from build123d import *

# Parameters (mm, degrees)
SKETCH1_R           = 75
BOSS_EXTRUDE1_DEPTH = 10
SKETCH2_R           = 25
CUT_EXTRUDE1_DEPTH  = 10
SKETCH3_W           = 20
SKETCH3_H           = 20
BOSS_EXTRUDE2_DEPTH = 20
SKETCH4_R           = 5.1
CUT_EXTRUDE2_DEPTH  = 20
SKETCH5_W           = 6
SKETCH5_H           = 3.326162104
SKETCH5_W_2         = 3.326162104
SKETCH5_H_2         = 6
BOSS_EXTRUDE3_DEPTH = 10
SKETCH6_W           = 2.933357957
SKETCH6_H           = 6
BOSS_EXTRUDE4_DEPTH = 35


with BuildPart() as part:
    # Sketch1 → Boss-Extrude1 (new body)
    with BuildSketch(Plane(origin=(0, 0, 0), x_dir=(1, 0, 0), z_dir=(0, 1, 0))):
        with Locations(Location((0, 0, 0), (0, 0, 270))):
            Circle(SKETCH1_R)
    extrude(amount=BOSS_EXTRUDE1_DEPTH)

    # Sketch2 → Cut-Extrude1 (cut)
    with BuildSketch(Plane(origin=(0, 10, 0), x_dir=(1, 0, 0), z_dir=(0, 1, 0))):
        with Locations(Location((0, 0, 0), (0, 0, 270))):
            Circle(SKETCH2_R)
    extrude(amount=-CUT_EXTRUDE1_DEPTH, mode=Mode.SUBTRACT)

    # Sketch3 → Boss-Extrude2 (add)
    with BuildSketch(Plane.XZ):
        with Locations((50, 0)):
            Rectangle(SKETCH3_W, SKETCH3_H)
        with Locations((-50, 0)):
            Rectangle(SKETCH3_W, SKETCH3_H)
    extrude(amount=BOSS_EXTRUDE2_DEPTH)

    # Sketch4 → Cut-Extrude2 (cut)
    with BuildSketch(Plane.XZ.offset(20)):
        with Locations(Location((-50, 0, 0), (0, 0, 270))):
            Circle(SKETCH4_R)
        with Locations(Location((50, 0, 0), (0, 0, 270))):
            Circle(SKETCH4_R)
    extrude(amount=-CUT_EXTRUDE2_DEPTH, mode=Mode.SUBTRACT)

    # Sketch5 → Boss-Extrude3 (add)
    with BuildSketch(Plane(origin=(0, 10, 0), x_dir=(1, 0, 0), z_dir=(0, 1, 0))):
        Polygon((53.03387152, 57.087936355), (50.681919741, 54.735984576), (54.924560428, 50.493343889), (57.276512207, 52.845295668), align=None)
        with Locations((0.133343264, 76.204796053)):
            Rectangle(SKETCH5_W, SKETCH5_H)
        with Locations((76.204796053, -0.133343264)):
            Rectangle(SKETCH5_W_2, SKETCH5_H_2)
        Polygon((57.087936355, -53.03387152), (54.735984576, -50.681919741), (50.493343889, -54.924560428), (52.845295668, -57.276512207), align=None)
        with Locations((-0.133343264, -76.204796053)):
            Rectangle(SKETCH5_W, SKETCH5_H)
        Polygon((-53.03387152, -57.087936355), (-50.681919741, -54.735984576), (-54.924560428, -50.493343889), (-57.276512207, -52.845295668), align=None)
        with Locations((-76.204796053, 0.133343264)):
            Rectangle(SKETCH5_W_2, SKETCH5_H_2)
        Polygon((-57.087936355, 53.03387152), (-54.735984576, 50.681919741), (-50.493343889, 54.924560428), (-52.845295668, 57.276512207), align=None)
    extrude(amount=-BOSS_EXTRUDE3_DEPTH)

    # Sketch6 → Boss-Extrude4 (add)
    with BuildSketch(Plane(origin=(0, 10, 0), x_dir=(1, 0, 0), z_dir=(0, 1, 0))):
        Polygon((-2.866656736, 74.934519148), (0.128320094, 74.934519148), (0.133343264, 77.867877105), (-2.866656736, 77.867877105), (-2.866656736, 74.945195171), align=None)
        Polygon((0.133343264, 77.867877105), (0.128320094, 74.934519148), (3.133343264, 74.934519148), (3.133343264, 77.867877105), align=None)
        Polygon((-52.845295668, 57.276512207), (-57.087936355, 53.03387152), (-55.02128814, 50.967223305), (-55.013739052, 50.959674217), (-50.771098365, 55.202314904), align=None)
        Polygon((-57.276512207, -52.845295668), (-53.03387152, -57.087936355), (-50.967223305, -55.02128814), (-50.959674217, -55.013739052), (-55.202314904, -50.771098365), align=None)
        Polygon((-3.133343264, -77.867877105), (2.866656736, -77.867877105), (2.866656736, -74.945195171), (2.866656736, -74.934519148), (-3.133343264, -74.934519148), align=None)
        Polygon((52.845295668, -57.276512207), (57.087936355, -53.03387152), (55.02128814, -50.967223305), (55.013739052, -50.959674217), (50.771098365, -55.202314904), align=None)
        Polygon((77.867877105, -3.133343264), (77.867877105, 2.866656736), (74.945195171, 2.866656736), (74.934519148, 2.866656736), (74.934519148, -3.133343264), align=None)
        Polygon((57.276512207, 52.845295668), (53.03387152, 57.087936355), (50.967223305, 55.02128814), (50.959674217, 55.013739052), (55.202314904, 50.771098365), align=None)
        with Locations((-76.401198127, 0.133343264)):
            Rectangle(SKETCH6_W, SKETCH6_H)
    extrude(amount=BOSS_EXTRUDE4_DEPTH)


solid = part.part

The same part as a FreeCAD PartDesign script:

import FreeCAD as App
import Part
import Sketcher

V = App.Vector
Q = App.Units.Quantity


def add_polygon(sketch, points):
    """Adds a closed chain of lines whose ends are joined by coincident constraints."""
    first, n = sketch.GeometryCount, len(points)
    for a, b in zip(points, points[1:] + points[:1]):
        sketch.addGeometry(Part.LineSegment(App.Vector(*a, 0), App.Vector(*b, 0)), False)
    for i in range(n):
        sketch.addConstraint(Sketcher.Constraint("Coincident", first + i, 2, first + (i + 1) % n, 1))

doc = App.newDocument("Part")
body = doc.addObject("PartDesign::Body", "Body")

# Sketch on XZ plane
sketch1 = doc.addObject("Sketcher::SketchObject", "Sketch")
body.addObject(sketch1)
sketch1.AttachmentSupport = (doc.XZ_Plane, [""])
sketch1.MapMode = "FlatFace"
sketch1.addGeometry(Part.Circle(V(0, 0, 0), V(0, 0, 1), 75), False)
sketch1.addConstraint([
    Sketcher.Constraint("Coincident", 0, 3, -1, 1),
    Sketcher.Constraint("Diameter", 0, 150.0),
])
pad1 = doc.addObject("PartDesign::Pad", "Pad")
body.addObject(pad1)
pad1.Profile = sketch1
pad1.Length = 10
pad1.Reversed = True

# Sketch on XZ plane
sketch2 = doc.addObject("Sketcher::SketchObject", "Sketch001")
body.addObject(sketch2)
sketch2.AttachmentSupport = (doc.XZ_Plane, [""])
sketch2.MapMode = "FlatFace"
sketch2.AttachmentOffset = App.Placement(V(0, 0, -10), App.Rotation())
sketch2.addGeometry(Part.Circle(V(0, 0, 0), V(0, 0, 1), 25), False)
sketch2.addConstraint([
    Sketcher.Constraint("Coincident", 0, 3, -1, 1),
    Sketcher.Constraint("Diameter", 0, 50.0),
])
pocket1 = doc.addObject("PartDesign::Pocket", "Pocket")
body.addObject(pocket1)
pocket1.Profile = sketch2
pocket1.Length = 10
pocket1.Reversed = True

# Sketch on XZ plane
sketch3 = doc.addObject("Sketcher::SketchObject", "Sketch002")
body.addObject(sketch3)
sketch3.AttachmentSupport = (doc.XZ_Plane, [""])
sketch3.MapMode = "FlatFace"
add_polygon(sketch3, [(40, 10), (40, -10), (60, -10), (60, 10)])  # lines 0-3
add_polygon(sketch3, [(-60, 10), (-60, -10), (-40, -10), (-40, 10)])  # lines 4-7
sketch3.addConstraint([
    Sketcher.Constraint("Vertical", 0),
    Sketcher.Constraint("Horizontal", 1),
    Sketcher.Constraint("Vertical", 2),
    Sketcher.Constraint("Horizontal", 3),
    Sketcher.Constraint("Vertical", 4),
    Sketcher.Constraint("Horizontal", 5),
    Sketcher.Constraint("Vertical", 6),
    Sketcher.Constraint("Horizontal", 7),
    Sketcher.Constraint("Symmetric", 2, 2, 4, 2, -1, 1),
    Sketcher.Constraint("Symmetric", 0, 2, 6, 2, -1, 1),
    Sketcher.Constraint("Horizontal", 1, 2, 4, 2),
    Sketcher.Constraint("Equal", 7, 0),
    Sketcher.Constraint("DistanceX", 1, 1, 1, 2, 20.0),
    Sketcher.Constraint("DistanceX", -1, 1, 0, 2, 40.0),
])
pad2 = doc.addObject("PartDesign::Pad", "Pad001")
body.addObject(pad2)
pad2.Profile = sketch3
pad2.Length = 20

# Sketch on XZ plane
sketch4 = doc.addObject("Sketcher::SketchObject", "Sketch003")
body.addObject(sketch4)
sketch4.AttachmentSupport = (doc.XZ_Plane, [""])
sketch4.MapMode = "FlatFace"
sketch4.AttachmentOffset = App.Placement(V(0, 0, 20), App.Rotation())
sketch4.addGeometry([
    Part.Circle(V(-50, 0, 0), V(0, 0, 1), 5),
    Part.Circle(V(50, 0, 0), V(0, 0, 1), 5),
], False)
sketch4.addConstraint([
    Sketcher.Constraint("Equal", 0, 1),
    Sketcher.Constraint("Symmetric", 0, 3, 1, 3, -1, 1),
    Sketcher.Constraint("PointOnObject", 0, 3, -1),
    Sketcher.Constraint("Diameter", 0, 10.2),
    Sketcher.Constraint("DistanceX", 0, 3, -1, 1, 50.0),
])
pocket2 = doc.addObject("PartDesign::Pocket", "Pocket001")
body.addObject(pocket2)
pocket2.Profile = sketch4
pocket2.Length = 20

# Sketch on XZ plane
sketch5 = doc.addObject("Sketcher::SketchObject", "Sketch004")
body.addObject(sketch5)
sketch5.AttachmentSupport = (doc.XZ_Plane, [""])
sketch5.MapMode = "FlatFace"
sketch5.AttachmentOffset = App.Placement(V(0, 0, -10), App.Rotation())
add_polygon(sketch5, [(53, -57.1), (50.7, -54.7), (54.9, -50.5), (57.3, -52.8)])  # lines 0-3
add_polygon(sketch5, [(-2.9, -77.9), (-2.9, -74.5), (3.1, -74.5), (3.1, -77.9)])  # lines 4-7
add_polygon(sketch5, [(74.5, -2.9), (74.5, 3.1), (77.9, 3.1), (77.9, -2.9)])  # lines 8-11
add_polygon(sketch5, [(57.1, 53), (54.7, 50.7), (50.5, 54.9), (52.8, 57.3)])  # lines 12-15
add_polygon(sketch5, [(-3.1, 74.5), (-3.1, 77.9), (2.9, 77.9), (2.9, 74.5)])  # lines 16-19
add_polygon(sketch5, [(-53, 57.1), (-50.7, 54.7), (-54.9, 50.5), (-57.3, 52.8)])  # lines 20-23
add_polygon(sketch5, [(-77.9, -3.1), (-77.9, 2.9), (-74.5, 2.9), (-74.5, -3.1)])  # lines 24-27
add_polygon(sketch5, [(-57.1, -53), (-54.7, -50.7), (-50.5, -54.9), (-52.8, -57.3)])  # lines 28-31
sketch5.addConstraint([
    Sketcher.Constraint("Vertical", 4),
    Sketcher.Constraint("Horizontal", 5),
    Sketcher.Constraint("Vertical", 6),
    Sketcher.Constraint("Horizontal", 7),
    Sketcher.Constraint("Vertical", 8),
    Sketcher.Constraint("Horizontal", 9),
    Sketcher.Constraint("Vertical", 10),
    Sketcher.Constraint("Horizontal", 11),
    Sketcher.Constraint("Vertical", 16),
    Sketcher.Constraint("Horizontal", 17),
    Sketcher.Constraint("Vertical", 18),
    Sketcher.Constraint("Horizontal", 19),
    Sketcher.Constraint("Vertical", 24),
    Sketcher.Constraint("Horizontal", 25),
    Sketcher.Constraint("Vertical", 26),
    Sketcher.Constraint("Horizontal", 27),
    Sketcher.Constraint("Symmetric", 6, 2, 16, 2, -1, 1),
    Sketcher.Constraint("Symmetric", 4, 2, 18, 2, -1, 1),
    Sketcher.Constraint("Symmetric", 0, 2, 20, 2, -1, 1),
    Sketcher.Constraint("Symmetric", 1, 2, 21, 2, -1, 1),
    Sketcher.Constraint("Symmetric", 2, 2, 22, 2, -1, 1),
    Sketcher.Constraint("Symmetric", 3, 2, 23, 2, -1, 1),
    Sketcher.Constraint("Symmetric", 10, 2, 24, 2, -1, 1),
    Sketcher.Constraint("Symmetric", 8, 2, 26, 2, -1, 1),
    Sketcher.Constraint("Symmetric", 12, 2, 28, 2, -1, 1),
    Sketcher.Constraint("Symmetric", 13, 2, 29, 2, -1, 1),
    Sketcher.Constraint("Symmetric", 14, 2, 30, 2, -1, 1),
    Sketcher.Constraint("Symmetric", 15, 2, 31, 2, -1, 1),
    Sketcher.Constraint("Perpendicular", 0, 1),
    Sketcher.Constraint("Perpendicular", 1, 2),
    Sketcher.Constraint("Perpendicular", 2, 3),
    Sketcher.Constraint("Parallel", 3, 12),
    Sketcher.Constraint("Perpendicular", 12, 13),
    Sketcher.Constraint("Perpendicular", 13, 14),
    Sketcher.Constraint("Perpendicular", 14, 15),
    Sketcher.Constraint("Equal", 27, 4),
    Sketcher.Constraint("Equal", 19, 8),
    Sketcher.Constraint("Equal", 2, 12),
    Sketcher.Constraint("Equal", 3, 13),
    Sketcher.Constraint("DistanceX", 5, 1, 5, 2, 6.0),
    Sketcher.Constraint("Angle", 0, Q("135 deg")),
    Sketcher.Constraint("Distance", 1, 6.0),
    Sketcher.Constraint("DistanceX", 9, 1, 9, 2, 3.326162),
    Sketcher.Constraint("DistanceX", -1, 1, 0, 2, 50.68192),
    Sketcher.Constraint("DistanceX", -1, 1, 3, 2, 53.033872),
    Sketcher.Constraint("DistanceY", -1, 1, 12, 2, 50.68192),
    Sketcher.Constraint("DistanceY", 4, 2, 0, 2, 19.80573),
    Sketcher.Constraint("DistanceX", 4, 2, 3, 2, 55.900528),
    Sketcher.Constraint("DistanceY", 2, 2, 8, 2, 55.978639),
    Sketcher.Constraint("DistanceX", 5, 2, 8, 2, 71.408372),
    Sketcher.Constraint("DistanceX", 12, 2, 8, 2, 19.80573),
    Sketcher.Constraint("DistanceY", 8, 2, 14, 2, 54.143169),
])
pad3 = doc.addObject("PartDesign::Pad", "Pad002")
body.addObject(pad3)
pad3.Profile = sketch5
pad3.Length = 10

# Sketch on XZ plane
sketch6 = doc.addObject("Sketcher::SketchObject", "Sketch005")
body.addObject(sketch6)
sketch6.AttachmentSupport = (doc.XZ_Plane, [""])
sketch6.MapMode = "FlatFace"
sketch6.AttachmentOffset = App.Placement(V(0, 0, -10), App.Rotation())
add_polygon(sketch6, [(-2.9, -74.9), (3.1, -74.9), (3.1, -77.9), (-2.9, -77.9)])  # lines 0-3
add_polygon(sketch6, [(-52.8, -57.3), (-57.1, -53), (-55, -51), (-50.8, -55.2)])  # lines 4-7
add_polygon(sketch6, [(-57.3, 52.8), (-53, 57.1), (-51, 55), (-55.2, 50.8)])  # lines 8-11
add_polygon(sketch6, [(-3.1, 77.9), (2.9, 77.9), (2.9, 74.9), (-3.1, 74.9)])  # lines 12-15
add_polygon(sketch6, [(52.8, 57.3), (57.1, 53), (55, 51), (50.8, 55.2)])  # lines 16-19
add_polygon(sketch6, [(77.9, 3.1), (77.9, -2.9), (74.9, -2.9), (74.9, 3.1)])  # lines 20-23
add_polygon(sketch6, [(57.3, -52.8), (53, -57.1), (51, -55), (55.2, -50.8)])  # lines 24-27
add_polygon(sketch6, [(-77.9, -3.1), (-77.9, 2.9), (-74.9, 2.9), (-74.9, -3.1)])  # lines 28-31
sketch6.addConstraint([
    Sketcher.Constraint("Horizontal", 0),
    Sketcher.Constraint("Vertical", 1),
    Sketcher.Constraint("Horizontal", 2),
    Sketcher.Constraint("Vertical", 3),
    Sketcher.Constraint("Horizontal", 12),
    Sketcher.Constraint("Vertical", 13),
    Sketcher.Constraint("Horizontal", 14),
    Sketcher.Constraint("Vertical", 15),
    Sketcher.Constraint("Vertical", 20),
    Sketcher.Constraint("Horizontal", 21),
    Sketcher.Constraint("Vertical", 22),
    Sketcher.Constraint("Horizontal", 23),
    Sketcher.Constraint("Vertical", 28),
    Sketcher.Constraint("Horizontal", 29),
    Sketcher.Constraint("Vertical", 30),
    Sketcher.Constraint("Horizontal", 31),
    Sketcher.Constraint("Symmetric", 2, 2, 12, 2, -1, 1),
    Sketcher.Constraint("Symmetric", 0, 2, 14, 2, -1, 1),
    Sketcher.Constraint("Symmetric", 4, 2, 16, 2, -1, 1),
    Sketcher.Constraint("Symmetric", 5, 2, 17, 2, -1, 1),
    Sketcher.Constraint("Symmetric", 6, 2, 18, 2, -1, 1),
    Sketcher.Constraint("Symmetric", 7, 2, 19, 2, -1, 1),
    Sketcher.Constraint("Symmetric", 8, 2, 24, 2, -1, 1),
    Sketcher.Constraint("Symmetric", 9, 2, 25, 2, -1, 1),
    Sketcher.Constraint("Symmetric", 10, 2, 26, 2, -1, 1),
    Sketcher.Constraint("Symmetric", 11, 2, 27, 2, -1, 1),
    Sketcher.Constraint("Symmetric", 20, 2, 28, 2, -1, 1),
    Sketcher.Constraint("Symmetric", 22, 2, 30, 2, -1, 1),
    Sketcher.Constraint("Perpendicular", 4, 5),
    Sketcher.Constraint("Perpendicular", 5, 6),
    Sketcher.Constraint("Perpendicular", 6, 7),
    Sketcher.Constraint("Parallel", 7, 8),
    Sketcher.Constraint("Perpendicular", 8, 9),
    Sketcher.Constraint("Perpendicular", 9, 10),
    Sketcher.Constraint("Perpendicular", 10, 11),
    Sketcher.Constraint("Equal", 31, 1),
    Sketcher.Constraint("Equal", 14, 20),
    Sketcher.Constraint("Equal", 6, 8),
    Sketcher.Constraint("Equal", 7, 9),
    Sketcher.Constraint("DistanceX", 0, 1, 0, 2, 6.0),
    Sketcher.Constraint("Angle", 4, Q("135 deg")),
    Sketcher.Constraint("Distance", 4, 6.0),
    Sketcher.Constraint("DistanceX", 6, 2, -1, 1, 50.771098),
    Sketcher.Constraint("DistanceY", -1, 1, 10, 2, 50.771098),
    Sketcher.Constraint("DistanceX", 21, 2, 21, 1, 2.933358),
    Sketcher.Constraint("DistanceY", 0, 2, -1, 1, 74.934519),
    Sketcher.Constraint("DistanceY", 4, 2, -1, 1, 53.033872),
    Sketcher.Constraint("DistanceX", 8, 2, -1, 1, 53.033872),
    Sketcher.Constraint("DistanceX", -1, 1, 21, 2, 74.934519),
    Sketcher.Constraint("DistanceX", 4, 2, 3, 2, 54.22128),
    Sketcher.Constraint("DistanceX", 6, 2, 3, 2, 47.904442),
    Sketcher.Constraint("DistanceY", 20, 2, 17, 2, 53.826331),
])
pad4 = doc.addObject("PartDesign::Pad", "Pad003")
body.addObject(pad4)
pad4.Profile = sketch6
pad4.Length = 35
pad4.Reversed = True

doc.recompute()
